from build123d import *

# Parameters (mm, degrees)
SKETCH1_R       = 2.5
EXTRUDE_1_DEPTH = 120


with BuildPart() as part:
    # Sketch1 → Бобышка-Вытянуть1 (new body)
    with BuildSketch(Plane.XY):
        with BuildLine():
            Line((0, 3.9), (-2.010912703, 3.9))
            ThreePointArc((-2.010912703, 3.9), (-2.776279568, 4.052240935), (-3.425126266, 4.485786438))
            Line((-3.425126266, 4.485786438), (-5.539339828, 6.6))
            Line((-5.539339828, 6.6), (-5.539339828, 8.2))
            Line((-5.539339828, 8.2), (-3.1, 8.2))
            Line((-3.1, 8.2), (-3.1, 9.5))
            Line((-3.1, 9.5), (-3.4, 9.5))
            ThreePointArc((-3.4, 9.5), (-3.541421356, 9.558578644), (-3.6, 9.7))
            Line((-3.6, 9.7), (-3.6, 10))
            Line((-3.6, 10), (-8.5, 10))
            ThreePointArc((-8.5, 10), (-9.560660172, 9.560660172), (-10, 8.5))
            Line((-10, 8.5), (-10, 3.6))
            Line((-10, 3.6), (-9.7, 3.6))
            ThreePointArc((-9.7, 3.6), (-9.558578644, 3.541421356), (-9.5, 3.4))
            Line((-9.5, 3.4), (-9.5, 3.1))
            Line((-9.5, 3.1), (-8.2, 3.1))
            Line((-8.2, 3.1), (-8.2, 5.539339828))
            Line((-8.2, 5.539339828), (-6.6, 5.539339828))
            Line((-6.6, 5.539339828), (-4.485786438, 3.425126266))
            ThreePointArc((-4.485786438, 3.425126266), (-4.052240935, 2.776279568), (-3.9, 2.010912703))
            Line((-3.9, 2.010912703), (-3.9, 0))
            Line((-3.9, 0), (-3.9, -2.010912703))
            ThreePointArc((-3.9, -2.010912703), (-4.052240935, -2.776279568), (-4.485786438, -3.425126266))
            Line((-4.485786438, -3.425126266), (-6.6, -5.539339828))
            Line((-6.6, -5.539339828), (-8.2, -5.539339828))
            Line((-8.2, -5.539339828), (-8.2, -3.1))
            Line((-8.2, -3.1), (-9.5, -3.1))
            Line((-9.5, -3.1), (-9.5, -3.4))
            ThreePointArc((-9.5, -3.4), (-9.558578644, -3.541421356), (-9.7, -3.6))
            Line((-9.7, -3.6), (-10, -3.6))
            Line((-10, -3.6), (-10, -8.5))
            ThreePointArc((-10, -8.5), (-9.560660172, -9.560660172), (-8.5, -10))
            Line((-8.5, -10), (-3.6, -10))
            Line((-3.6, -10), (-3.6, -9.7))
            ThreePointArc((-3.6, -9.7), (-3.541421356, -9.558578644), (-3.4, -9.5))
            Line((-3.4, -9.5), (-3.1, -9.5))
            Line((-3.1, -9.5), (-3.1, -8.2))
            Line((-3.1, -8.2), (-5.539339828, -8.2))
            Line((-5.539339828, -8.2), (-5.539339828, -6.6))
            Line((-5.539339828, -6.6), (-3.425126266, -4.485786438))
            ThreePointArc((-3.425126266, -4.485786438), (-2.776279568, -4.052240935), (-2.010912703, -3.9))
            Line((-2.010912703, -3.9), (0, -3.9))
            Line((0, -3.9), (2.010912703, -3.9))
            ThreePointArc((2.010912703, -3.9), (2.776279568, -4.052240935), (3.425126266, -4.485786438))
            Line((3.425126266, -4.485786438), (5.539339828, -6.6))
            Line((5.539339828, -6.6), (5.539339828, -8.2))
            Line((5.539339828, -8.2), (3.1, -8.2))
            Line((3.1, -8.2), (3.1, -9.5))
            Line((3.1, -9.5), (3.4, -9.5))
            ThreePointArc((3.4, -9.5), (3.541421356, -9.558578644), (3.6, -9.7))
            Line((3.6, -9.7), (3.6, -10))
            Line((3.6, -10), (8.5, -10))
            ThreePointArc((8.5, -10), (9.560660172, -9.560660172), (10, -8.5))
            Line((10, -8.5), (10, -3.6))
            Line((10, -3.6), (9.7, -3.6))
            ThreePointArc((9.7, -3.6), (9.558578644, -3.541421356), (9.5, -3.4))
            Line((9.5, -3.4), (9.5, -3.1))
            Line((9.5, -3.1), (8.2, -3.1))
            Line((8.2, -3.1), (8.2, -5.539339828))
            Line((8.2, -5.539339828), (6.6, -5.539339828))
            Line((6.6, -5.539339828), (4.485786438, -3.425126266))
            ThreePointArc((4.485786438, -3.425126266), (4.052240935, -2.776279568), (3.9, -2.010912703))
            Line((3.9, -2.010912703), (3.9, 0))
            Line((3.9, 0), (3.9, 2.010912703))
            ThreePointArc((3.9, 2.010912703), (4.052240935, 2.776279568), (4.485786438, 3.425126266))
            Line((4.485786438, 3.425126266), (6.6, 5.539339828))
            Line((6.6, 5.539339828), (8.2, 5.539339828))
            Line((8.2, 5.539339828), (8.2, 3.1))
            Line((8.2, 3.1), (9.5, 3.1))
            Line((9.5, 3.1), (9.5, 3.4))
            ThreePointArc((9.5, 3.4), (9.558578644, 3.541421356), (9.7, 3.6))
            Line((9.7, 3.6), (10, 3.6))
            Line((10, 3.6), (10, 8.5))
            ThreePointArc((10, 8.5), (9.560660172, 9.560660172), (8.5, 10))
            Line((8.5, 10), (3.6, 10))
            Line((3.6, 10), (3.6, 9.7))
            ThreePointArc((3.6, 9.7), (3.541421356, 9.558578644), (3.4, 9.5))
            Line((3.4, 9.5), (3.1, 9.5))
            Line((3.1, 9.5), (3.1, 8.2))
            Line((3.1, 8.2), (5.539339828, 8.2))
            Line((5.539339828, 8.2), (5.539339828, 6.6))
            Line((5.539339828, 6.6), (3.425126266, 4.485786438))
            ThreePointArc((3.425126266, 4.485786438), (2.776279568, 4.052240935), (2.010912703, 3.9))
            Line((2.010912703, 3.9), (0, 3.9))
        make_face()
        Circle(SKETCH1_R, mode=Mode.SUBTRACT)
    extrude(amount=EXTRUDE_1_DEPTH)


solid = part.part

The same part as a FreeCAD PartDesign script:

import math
import FreeCAD as App
import Part
import Sketcher
from FreeCAD import Vector

doc = App.newDocument("Part")
body = doc.addObject("PartDesign::Body", "Body")

# Sketch on XY plane
sketch1 = body.newObject("Sketcher::SketchObject", "Sketch")
sketch1.AttachmentSupport = (doc.getObject("XY_Plane"), [""])
sketch1.MapMode = "FlatFace"
sketch1.addGeometry([
    Part.ArcOfCircle(Part.Circle(Vector(-2.01, 5.9, 0), Vector(0, 0, 1), 2), math.radians(-135), math.radians(-90)),  # 0
    Part.LineSegment(Vector(-3.43, 4.49, 0), Vector(-5.54, 6.6, 0)),  # 1
    Part.LineSegment(Vector(-5.54, 6.6, 0), Vector(-5.54, 8.2, 0)),  # 2
    Part.LineSegment(Vector(-5.54, 8.2, 0), Vector(-3.1, 8.2, 0)),  # 3
    Part.LineSegment(Vector(-3.1, 8.2, 0), Vector(-3.1, 9.5, 0)),  # 4
    Part.LineSegment(Vector(-3.1, 9.5, 0), Vector(-3.4, 9.5, 0)),  # 5
    Part.ArcOfCircle(Part.Circle(Vector(-3.4, 9.7, 0), Vector(0, 0, 1), 0.2), math.radians(-180), math.radians(-90)),  # 6
    Part.LineSegment(Vector(-3.6, 9.7, 0), Vector(-3.6, 10, 0)),  # 7
    Part.LineSegment(Vector(-3.6, 10, 0), Vector(-8.5, 10, 0)),  # 8
    Part.ArcOfCircle(Part.Circle(Vector(-8.5, 8.5, 0), Vector(0, 0, 1), 1.5), math.radians(90), math.radians(180)),  # 9
    Part.LineSegment(Vector(-10, 8.5, 0), Vector(-10, 3.6, 0)),  # 10
    Part.LineSegment(Vector(-10, 3.6, 0), Vector(-9.7, 3.6, 0)),  # 11
    Part.ArcOfCircle(Part.Circle(Vector(-9.7, 3.4, 0), Vector(0, 0, 1), 0.2), math.radians(0), math.radians(90)),  # 12
    Part.LineSegment(Vector(-9.5, 3.4, 0), Vector(-9.5, 3.1, 0)),  # 13
    Part.LineSegment(Vector(-9.5, 3.1, 0), Vector(-8.2, 3.1, 0)),  # 14
    Part.LineSegment(Vector(-8.2, 3.1, 0), Vector(-8.2, 5.54, 0)),  # 15
    Part.LineSegment(Vector(-8.2, 5.54, 0), Vector(-6.6, 5.54, 0)),  # 16
    Part.LineSegment(Vector(-6.6, 5.54, 0), Vector(-4.49, 3.43, 0)),  # 17
    Part.ArcOfCircle(Part.Circle(Vector(-5.9, 2.01, 0), Vector(0, 0, 1), 2), math.radians(0), math.radians(45)),  # 18
    Part.LineSegment(Vector(-3.9, 2.01, 0), Vector(-3.9, -2.01, 0)),  # 19
    Part.ArcOfCircle(Part.Circle(Vector(-5.9, -2.01, 0), Vector(0, 0, 1), 2), math.radians(-45), math.radians(0)),  # 20
    Part.LineSegment(Vector(-4.49, -3.43, 0), Vector(-6.6, -5.54, 0)),  # 21
    Part.LineSegment(Vector(-6.6, -5.54, 0), Vector(-8.2, -5.54, 0)),  # 22
    Part.LineSegment(Vector(-8.2, -5.54, 0), Vector(-8.2, -3.1, 0)),  # 23
    Part.LineSegment(Vector(-8.2, -3.1, 0), Vector(-9.5, -3.1, 0)),  # 24
    Part.LineSegment(Vector(-9.5, -3.1, 0), Vector(-9.5, -3.4, 0)),  # 25
    Part.ArcOfCircle(Part.Circle(Vector(-9.7, -3.4, 0), Vector(0, 0, 1), 0.2), math.radians(-90), math.radians(0)),  # 26
    Part.LineSegment(Vector(-9.7, -3.6, 0), Vector(-10, -3.6, 0)),  # 27
    Part.LineSegment(Vector(-10, -3.6, 0), Vector(-10, -8.5, 0)),  # 28
    Part.ArcOfCircle(Part.Circle(Vector(-8.5, -8.5, 0), Vector(0, 0, 1), 1.5), math.radians(180), math.radians(270)),  # 29
    Part.LineSegment(Vector(-8.5, -10, 0), Vector(-3.6, -10, 0)),  # 30
    Part.LineSegment(Vector(-3.6, -10, 0), Vector(-3.6, -9.7, 0)),  # 31
    Part.ArcOfCircle(Part.Circle(Vector(-3.4, -9.7, 0), Vector(0, 0, 1), 0.2), math.radians(90), math.radians(180)),  # 32
    Part.LineSegment(Vector(-3.4, -9.5, 0), Vector(-3.1, -9.5, 0)),  # 33
    Part.LineSegment(Vector(-3.1, -9.5, 0), Vector(-3.1, -8.2, 0)),  # 34
    Part.LineSegment(Vector(-3.1, -8.2, 0), Vector(-5.54, -8.2, 0)),  # 35
    Part.LineSegment(Vector(-5.54, -8.2, 0), Vector(-5.54, -6.6, 0)),  # 36
    Part.LineSegment(Vector(-5.54, -6.6, 0), Vector(-3.43, -4.49, 0)),  # 37
    Part.ArcOfCircle(Part.Circle(Vector(-2.01, -5.9, 0), Vector(0, 0, 1), 2), math.radians(90), math.radians(135)),  # 38
    Part.LineSegment(Vector(-2.01, -3.9, 0), Vector(2.01, -3.9, 0)),  # 39
    Part.ArcOfCircle(Part.Circle(Vector(2.01, -5.9, 0), Vector(0, 0, 1), 2), math.radians(45), math.radians(90)),  # 40
    Part.LineSegment(Vector(3.43, -4.49, 0), Vector(5.54, -6.6, 0)),  # 41
    Part.LineSegment(Vector(5.54, -6.6, 0), Vector(5.54, -8.2, 0)),  # 42
    Part.LineSegment(Vector(5.54, -8.2, 0), Vector(3.1, -8.2, 0)),  # 43
    Part.LineSegment(Vector(3.1, -8.2, 0), Vector(3.1, -9.5, 0)),  # 44
    Part.LineSegment(Vector(3.1, -9.5, 0), Vector(3.4, -9.5, 0)),  # 45
    Part.ArcOfCircle(Part.Circle(Vector(3.4, -9.7, 0), Vector(0, 0, 1), 0.2), math.radians(0), math.radians(90)),  # 46
    Part.LineSegment(Vector(3.6, -9.7, 0), Vector(3.6, -10, 0)),  # 47
    Part.LineSegment(Vector(3.6, -10, 0), Vector(8.5, -10, 0)),  # 48
    Part.ArcOfCircle(Part.Circle(Vector(8.5, -8.5, 0), Vector(0, 0, 1), 1.5), math.radians(-90), math.radians(0)),  # 49
    Part.LineSegment(Vector(10, -8.5, 0), Vector(10, -3.6, 0)),  # 50
    Part.LineSegment(Vector(10, -3.6, 0), Vector(9.7, -3.6, 0)),  # 51
    Part.ArcOfCircle(Part.Circle(Vector(9.7, -3.4, 0), Vector(0, 0, 1), 0.2), math.radians(-180), math.radians(-90)),  # 52
    Part.LineSegment(Vector(9.5, -3.4, 0), Vector(9.5, -3.1, 0)),  # 53
    Part.LineSegment(Vector(9.5, -3.1, 0), Vector(8.2, -3.1, 0)),  # 54
    Part.LineSegment(Vector(8.2, -3.1, 0), Vector(8.2, -5.54, 0)),  # 55
    Part.LineSegment(Vector(8.2, -5.54, 0), Vector(6.6, -5.54, 0)),  # 56
    Part.LineSegment(Vector(6.6, -5.54, 0), Vector(4.49, -3.43, 0)),  # 57
    Part.ArcOfCircle(Part.Circle(Vector(5.9, -2.01, 0), Vector(0, 0, 1), 2), math.radians(180), math.radians(225)),  # 58
    Part.LineSegment(Vector(3.9, -2.01, 0), Vector(3.9, 2.01, 0)),  # 59
    Part.ArcOfCircle(Part.Circle(Vector(5.9, 2.01, 0), Vector(0, 0, 1), 2), math.radians(135), math.radians(180)),  # 60
    Part.LineSegment(Vector(4.49, 3.43, 0), Vector(6.6, 5.54, 0)),  # 61
    Part.LineSegment(Vector(6.6, 5.54, 0), Vector(8.2, 5.54, 0)),  # 62
    Part.LineSegment(Vector(8.2, 5.54, 0), Vector(8.2, 3.1, 0)),  # 63
    Part.LineSegment(Vector(8.2, 3.1, 0), Vector(9.5, 3.1, 0)),  # 64
    Part.LineSegment(Vector(9.5, 3.1, 0), Vector(9.5, 3.4, 0)),  # 65
    Part.ArcOfCircle(Part.Circle(Vector(9.7, 3.4, 0), Vector(0, 0, 1), 0.2), math.radians(90), math.radians(180)),  # 66
    Part.LineSegment(Vector(9.7, 3.6, 0), Vector(10, 3.6, 0)),  # 67
    Part.LineSegment(Vector(10, 3.6, 0), Vector(10, 8.5, 0)),  # 68
    Part.ArcOfCircle(Part.Circle(Vector(8.5, 8.5, 0), Vector(0, 0, 1), 1.5), math.radians(0), math.radians(90)),  # 69
    Part.LineSegment(Vector(8.5, 10, 0), Vector(3.6, 10, 0)),  # 70
    Part.LineSegment(Vector(3.6, 10, 0), Vector(3.6, 9.7, 0)),  # 71
    Part.ArcOfCircle(Part.Circle(Vector(3.4, 9.7, 0), Vector(0, 0, 1), 0.2), math.radians(-90), math.radians(0)),  # 72
    Part.LineSegment(Vector(3.4, 9.5, 0), Vector(3.1, 9.5, 0)),  # 73
    Part.LineSegment(Vector(3.1, 9.5, 0), Vector(3.1, 8.2, 0)),  # 74
    Part.LineSegment(Vector(3.1, 8.2, 0), Vector(5.54, 8.2, 0)),  # 75
    Part.LineSegment(Vector(5.54, 8.2, 0), Vector(5.54, 6.6, 0)),  # 76
    Part.LineSegment(Vector(5.54, 6.6, 0), Vector(3.43, 4.49, 0)),  # 77
    Part.ArcOfCircle(Part.Circle(Vector(2.01, 5.9, 0), Vector(0, 0, 1), 2), math.radians(-90), math.radians(-45)),  # 78
    Part.LineSegment(Vector(2.01, 3.9, 0), Vector(-2.01, 3.9, 0)),  # 79
    Part.Circle(Vector(0, 0, 0), Vector(0, 0, 1), 2.5),  # 80
], False)
sketch1.addConstraint([
    Sketcher.Constraint("Tangent", 0, 1, 1, 1),
    Sketcher.Constraint("Coincident", 1, 2, 2, 1),
    Sketcher.Constraint("Coincident", 2, 2, 3, 1),
    Sketcher.Constraint("Coincident", 3, 2, 4, 1),
    Sketcher.Constraint("Coincident", 4, 2, 5, 1),
    Sketcher.Constraint("Tangent", 5, 2, 6, 2),
    Sketcher.Constraint("Tangent", 6, 1, 7, 1),
    Sketcher.Constraint("Coincident", 7, 2, 8, 1),
    Sketcher.Constraint("Tangent", 8, 2, 9, 1),
    Sketcher.Constraint("Tangent", 9, 2, 10, 1),
    Sketcher.Constraint("Coincident", 10, 2, 11, 1),
    Sketcher.Constraint("Tangent", 11, 2, 12, 2),
    Sketcher.Constraint("Tangent", 12, 1, 13, 1),
    Sketcher.Constraint("Coincident", 13, 2, 14, 1),
    Sketcher.Constraint("Coincident", 14, 2, 15, 1),
    Sketcher.Constraint("Coincident", 15, 2, 16, 1),
    Sketcher.Constraint("Coincident", 16, 2, 17, 1),
    Sketcher.Constraint("Tangent", 17, 2, 18, 2),
    Sketcher.Constraint("Tangent", 18, 1, 19, 1),
    Sketcher.Constraint("Tangent", 19, 2, 20, 2),
    Sketcher.Constraint("Tangent", 20, 1, 21, 1),
    Sketcher.Constraint("Coincident", 21, 2, 22, 1),
    Sketcher.Constraint("Coincident", 22, 2, 23, 1),
    Sketcher.Constraint("Coincident", 23, 2, 24, 1),
    Sketcher.Constraint("Coincident", 24, 2, 25, 1),
    Sketcher.Constraint("Tangent", 25, 2, 26, 2),
    Sketcher.Constraint("Tangent", 26, 1, 27, 1),
    Sketcher.Constraint("Coincident", 27, 2, 28, 1),
    Sketcher.Constraint("Tangent", 28, 2, 29, 1),
    Sketcher.Constraint("Tangent", 29, 2, 30, 1),
    Sketcher.Constraint("Coincident", 30, 2, 31, 1),
    Sketcher.Constraint("Tangent", 31, 2, 32, 2),
    Sketcher.Constraint("Tangent", 32, 1, 33, 1),
    Sketcher.Constraint("Coincident", 33, 2, 34, 1),
    Sketcher.Constraint("Coincident", 34, 2, 35, 1),
    Sketcher.Constraint("Coincident", 35, 2, 36, 1),
    Sketcher.Constraint("Coincident", 36, 2, 37, 1),
    Sketcher.Constraint("Tangent", 37, 2, 38, 2),
    Sketcher.Constraint("Tangent", 38, 1, 39, 1),
    Sketcher.Constraint("Tangent", 39, 2, 40, 2),
    Sketcher.Constraint("Tangent", 40, 1, 41, 1),
    Sketcher.Constraint("Coincident", 41, 2, 42, 1),
    Sketcher.Constraint("Coincident", 42, 2, 43, 1),
    Sketcher.Constraint("Coincident", 43, 2, 44, 1),
    Sketcher.Constraint("Coincident", 44, 2, 45, 1),
    Sketcher.Constraint("Tangent", 45, 2, 46, 2),
    Sketcher.Constraint("Tangent", 46, 1, 47, 1),
    Sketcher.Constraint("Coincident", 47, 2, 48, 1),
    Sketcher.Constraint("Tangent", 48, 2, 49, 1),
    Sketcher.Constraint("Tangent", 49, 2, 50, 1),
    Sketcher.Constraint("Coincident", 50, 2, 51, 1),
    Sketcher.Constraint("Tangent", 51, 2, 52, 2),
    Sketcher.Constraint("Tangent", 52, 1, 53, 1),
    Sketcher.Constraint("Coincident", 53, 2, 54, 1),
    Sketcher.Constraint("Coincident", 54, 2, 55, 1),
    Sketcher.Constraint("Coincident", 55, 2, 56, 1),
    Sketcher.Constraint("Coincident", 56, 2, 57, 1),
    Sketcher.Constraint("Tangent", 57, 2, 58, 2),
    Sketcher.Constraint("Tangent", 58, 1, 59, 1),
    Sketcher.Constraint("Tangent", 59, 2, 60, 2),
    Sketcher.Constraint("Tangent", 60, 1, 61, 1),
    Sketcher.Constraint("Coincident", 61, 2, 62, 1),
    Sketcher.Constraint("Coincident", 62, 2, 63, 1),
    Sketcher.Constraint("Coincident", 63, 2, 64, 1),
    Sketcher.Constraint("Coincident", 64, 2, 65, 1),
    Sketcher.Constraint("Tangent", 65, 2, 66, 2),
    Sketcher.Constraint("Tangent", 66, 1, 67, 1),
    Sketcher.Constraint("Coincident", 67, 2, 68, 1),
    Sketcher.Constraint("Tangent", 68, 2, 69, 1),
    Sketcher.Constraint("Tangent", 69, 2, 70, 1),
    Sketcher.Constraint("Coincident", 70, 2, 71, 1),
    Sketcher.Constraint("Tangent", 71, 2, 72, 2),
    Sketcher.Constraint("Tangent", 72, 1, 73, 1),
    Sketcher.Constraint("Coincident", 73, 2, 74, 1),
    Sketcher.Constraint("Coincident", 74, 2, 75, 1),
    Sketcher.Constraint("Coincident", 75, 2, 76, 1),
    Sketcher.Constraint("Coincident", 76, 2, 77, 1),
    Sketcher.Constraint("Tangent", 77, 2, 78, 2),
    Sketcher.Constraint("Tangent", 78, 1, 79, 1),
    Sketcher.Constraint("Tangent", 79, 2, 0, 2),
    Sketcher.Constraint("Vertical", 2),
    Sketcher.Constraint("Horizontal", 3),
    Sketcher.Constraint("Vertical", 4),
    Sketcher.Constraint("Horizontal", 5),
    Sketcher.Constraint("Vertical", 7),
    Sketcher.Constraint("Horizontal", 8),
    Sketcher.Constraint("Vertical", 10),
    Sketcher.Constraint("Horizontal", 11),
    Sketcher.Constraint("Vertical", 13),
    Sketcher.Constraint("Horizontal", 14),
    Sketcher.Constraint("Vertical", 15),
    Sketcher.Constraint("Horizontal", 16),
    Sketcher.Constraint("Vertical", 19),
    Sketcher.Constraint("Horizontal", 22),
    Sketcher.Constraint("Vertical", 23),
    Sketcher.Constraint("Horizontal", 24),
    Sketcher.Constraint("Vertical", 25),
    Sketcher.Constraint("Horizontal", 27),
    Sketcher.Constraint("Vertical", 28),
    Sketcher.Constraint("Horizontal", 30),
    Sketcher.Constraint("Vertical", 31),
    Sketcher.Constraint("Horizontal", 33),
    Sketcher.Constraint("Vertical", 34),
    Sketcher.Constraint("Horizontal", 35),
    Sketcher.Constraint("Vertical", 36),
    Sketcher.Constraint("Horizontal", 39),
    Sketcher.Constraint("Vertical", 42),
    Sketcher.Constraint("Horizontal", 43),
    Sketcher.Constraint("Vertical", 44),
    Sketcher.Constraint("Horizontal", 45),
    Sketcher.Constraint("Vertical", 47),
    Sketcher.Constraint("Horizontal", 48),
    Sketcher.Constraint("Vertical", 50),
    Sketcher.Constraint("Horizontal", 51),
    Sketcher.Constraint("Vertical", 53),
    Sketcher.Constraint("Horizontal", 54),
    Sketcher.Constraint("Vertical", 55),
    Sketcher.Constraint("Horizontal", 56),
    Sketcher.Constraint("Vertical", 59),
    Sketcher.Constraint("Horizontal", 62),
    Sketcher.Constraint("Vertical", 63),
    Sketcher.Constraint("Horizontal", 64),
    Sketcher.Constraint("Vertical", 65),
    Sketcher.Constraint("Horizontal", 67),
    Sketcher.Constraint("Vertical", 68),
    Sketcher.Constraint("Horizontal", 70),
    Sketcher.Constraint("Vertical", 71),
    Sketcher.Constraint("Horizontal", 73),
    Sketcher.Constraint("Vertical", 74),
    Sketcher.Constraint("Horizontal", 75),
    Sketcher.Constraint("Vertical", 76),
    Sketcher.Constraint("Horizontal", 79),
    Sketcher.Constraint("Coincident", 80, 3, -1, 1),
    Sketcher.Constraint("Equal", 6, 12),
    Sketcher.Constraint("Equal", 0, 18),
    Sketcher.Constraint("Equal", 18, 20),
    Sketcher.Constraint("Equal", 12, 26),
    Sketcher.Constraint("Equal", 9, 29),
    Sketcher.Constraint("Equal", 26, 32),
    Sketcher.Constraint("Equal", 20, 38),
    Sketcher.Constraint("Equal", 38, 40),
    Sketcher.Constraint("Equal", 32, 46),
    Sketcher.Constraint("Equal", 29, 49),
    Sketcher.Constraint("Equal", 46, 52),
    Sketcher.Constraint("Equal", 40, 58),
    Sketcher.Constraint("Equal", 58, 60),
    Sketcher.Constraint("Equal", 52, 66),
    Sketcher.Constraint("Equal", 49, 69),
    Sketcher.Constraint("Equal", 66, 72),
    Sketcher.Constraint("Equal", 60, 78),
    Sketcher.Constraint("Symmetric", 0, 3, 40, 3, -1, 1),
    Sketcher.Constraint("Symmetric", 6, 3, 46, 3, -1, 1),
    Sketcher.Constraint("Symmetric", 9, 3, 49, 3, -1, 1),
    Sketcher.Constraint("Symmetric", 12, 3, 52, 3, -1, 1),
    Sketcher.Constraint("Symmetric", 18, 3, 58, 3, -1, 1),
    Sketcher.Constraint("Symmetric", 26, 3, 66, 3, -1, 1),
    Sketcher.Constraint("Symmetric", 29, 3, 69, 3, -1, 1),
    Sketcher.Constraint("Symmetric", 32, 3, 72, 3, -1, 1),
    Sketcher.Constraint("Symmetric", 1, 2, 41, 2, -1, 1),
    Sketcher.Constraint("Symmetric", 3, 2, 43, 2, -1, 1),
    Sketcher.Constraint("Symmetric", 14, 2, 54, 2, -1, 1),
    Sketcher.Constraint("Symmetric", 16, 2, 56, 2, -1, 1),
    Sketcher.Constraint("Symmetric", 20, 1, 60, 1, -1, 1),
    Sketcher.Constraint("Symmetric", 22, 2, 62, 2, -1, 1),
    Sketcher.Constraint("Symmetric", 34, 2, 74, 2, -1, 1),
    Sketcher.Constraint("Symmetric", 36, 2, 76, 2, -1, 1),
    Sketcher.Constraint("Symmetric", 32, 3, 46, 3, -2),
    Sketcher.Constraint("Symmetric", 29, 3, 49, 3, -2),
    Sketcher.Constraint("Symmetric", 26, 3, 52, 3, -2),
    Sketcher.Constraint("Symmetric", 37, 2, 40, 1, -2),
    Sketcher.Constraint("Symmetric", 35, 2, 42, 2, -2),
    Sketcher.Constraint("Symmetric", 23, 2, 54, 2, -2),
    Sketcher.Constraint("Symmetric", 21, 2, 56, 2, -2),
    Sketcher.Constraint("Parallel", 1, 17),
    Sketcher.Constraint("Perpendicular", 17, 21),
    Sketcher.Constraint("Parallel", 21, 37),
    Sketcher.Constraint("Parallel", 61, 77),
    Sketcher.Constraint("Horizontal", 14, 2, 63, 2),
    Sketcher.Constraint("Vertical", 4, 2, 33, 2),
    Sketcher.Constraint("Equal", 5, 11),
    Sketcher.Constraint("Equal", 62, 2),
    Sketcher.Constraint("Equal", 64, 4),
    Sketcher.Constraint("Equal", 73, 7),
    Sketcher.Constraint("Equal", 70, 10),
    Sketcher.Constraint("Equal", 7, 13),
    Sketcher.Constraint("Equal", 75, 15),
    Sketcher.Constraint("Equal", 79, 19),
    Sketcher.Constraint("Equal", 1, 17),
    Sketcher.Constraint("Diameter", 80, 5.0),
    Sketcher.Constraint("Radius", 0, 2.0),
    Sketcher.Constraint("Radius", 6, 0.2),
    Sketcher.Constraint("Radius", 9, 1.5),
    Sketcher.Constraint("DistanceX", 5, 2, 5, 1, 0.3),
    Sketcher.Constraint("DistanceX", 8, 2, 8, 1, 4.9),
    Sketcher.Constraint("DistanceX", 14, 1, 14, 2, 1.3),
    Sketcher.Constraint("DistanceX", 16, 1, 16, 2, 1.6),
    Sketcher.Constraint("DistanceY", -1, 1, 7, 2, 10.0),
    Sketcher.Constraint("DistanceY", -1, 1, 0, 3, 5.9),
    Sketcher.Constraint("DistanceX", 3, 1, 3, 2, 2.43934),
])
pad1 = body.newObject("PartDesign::Pad", "Pad")
pad1.Profile = sketch1
pad1.Length = 120

doc.recompute()
